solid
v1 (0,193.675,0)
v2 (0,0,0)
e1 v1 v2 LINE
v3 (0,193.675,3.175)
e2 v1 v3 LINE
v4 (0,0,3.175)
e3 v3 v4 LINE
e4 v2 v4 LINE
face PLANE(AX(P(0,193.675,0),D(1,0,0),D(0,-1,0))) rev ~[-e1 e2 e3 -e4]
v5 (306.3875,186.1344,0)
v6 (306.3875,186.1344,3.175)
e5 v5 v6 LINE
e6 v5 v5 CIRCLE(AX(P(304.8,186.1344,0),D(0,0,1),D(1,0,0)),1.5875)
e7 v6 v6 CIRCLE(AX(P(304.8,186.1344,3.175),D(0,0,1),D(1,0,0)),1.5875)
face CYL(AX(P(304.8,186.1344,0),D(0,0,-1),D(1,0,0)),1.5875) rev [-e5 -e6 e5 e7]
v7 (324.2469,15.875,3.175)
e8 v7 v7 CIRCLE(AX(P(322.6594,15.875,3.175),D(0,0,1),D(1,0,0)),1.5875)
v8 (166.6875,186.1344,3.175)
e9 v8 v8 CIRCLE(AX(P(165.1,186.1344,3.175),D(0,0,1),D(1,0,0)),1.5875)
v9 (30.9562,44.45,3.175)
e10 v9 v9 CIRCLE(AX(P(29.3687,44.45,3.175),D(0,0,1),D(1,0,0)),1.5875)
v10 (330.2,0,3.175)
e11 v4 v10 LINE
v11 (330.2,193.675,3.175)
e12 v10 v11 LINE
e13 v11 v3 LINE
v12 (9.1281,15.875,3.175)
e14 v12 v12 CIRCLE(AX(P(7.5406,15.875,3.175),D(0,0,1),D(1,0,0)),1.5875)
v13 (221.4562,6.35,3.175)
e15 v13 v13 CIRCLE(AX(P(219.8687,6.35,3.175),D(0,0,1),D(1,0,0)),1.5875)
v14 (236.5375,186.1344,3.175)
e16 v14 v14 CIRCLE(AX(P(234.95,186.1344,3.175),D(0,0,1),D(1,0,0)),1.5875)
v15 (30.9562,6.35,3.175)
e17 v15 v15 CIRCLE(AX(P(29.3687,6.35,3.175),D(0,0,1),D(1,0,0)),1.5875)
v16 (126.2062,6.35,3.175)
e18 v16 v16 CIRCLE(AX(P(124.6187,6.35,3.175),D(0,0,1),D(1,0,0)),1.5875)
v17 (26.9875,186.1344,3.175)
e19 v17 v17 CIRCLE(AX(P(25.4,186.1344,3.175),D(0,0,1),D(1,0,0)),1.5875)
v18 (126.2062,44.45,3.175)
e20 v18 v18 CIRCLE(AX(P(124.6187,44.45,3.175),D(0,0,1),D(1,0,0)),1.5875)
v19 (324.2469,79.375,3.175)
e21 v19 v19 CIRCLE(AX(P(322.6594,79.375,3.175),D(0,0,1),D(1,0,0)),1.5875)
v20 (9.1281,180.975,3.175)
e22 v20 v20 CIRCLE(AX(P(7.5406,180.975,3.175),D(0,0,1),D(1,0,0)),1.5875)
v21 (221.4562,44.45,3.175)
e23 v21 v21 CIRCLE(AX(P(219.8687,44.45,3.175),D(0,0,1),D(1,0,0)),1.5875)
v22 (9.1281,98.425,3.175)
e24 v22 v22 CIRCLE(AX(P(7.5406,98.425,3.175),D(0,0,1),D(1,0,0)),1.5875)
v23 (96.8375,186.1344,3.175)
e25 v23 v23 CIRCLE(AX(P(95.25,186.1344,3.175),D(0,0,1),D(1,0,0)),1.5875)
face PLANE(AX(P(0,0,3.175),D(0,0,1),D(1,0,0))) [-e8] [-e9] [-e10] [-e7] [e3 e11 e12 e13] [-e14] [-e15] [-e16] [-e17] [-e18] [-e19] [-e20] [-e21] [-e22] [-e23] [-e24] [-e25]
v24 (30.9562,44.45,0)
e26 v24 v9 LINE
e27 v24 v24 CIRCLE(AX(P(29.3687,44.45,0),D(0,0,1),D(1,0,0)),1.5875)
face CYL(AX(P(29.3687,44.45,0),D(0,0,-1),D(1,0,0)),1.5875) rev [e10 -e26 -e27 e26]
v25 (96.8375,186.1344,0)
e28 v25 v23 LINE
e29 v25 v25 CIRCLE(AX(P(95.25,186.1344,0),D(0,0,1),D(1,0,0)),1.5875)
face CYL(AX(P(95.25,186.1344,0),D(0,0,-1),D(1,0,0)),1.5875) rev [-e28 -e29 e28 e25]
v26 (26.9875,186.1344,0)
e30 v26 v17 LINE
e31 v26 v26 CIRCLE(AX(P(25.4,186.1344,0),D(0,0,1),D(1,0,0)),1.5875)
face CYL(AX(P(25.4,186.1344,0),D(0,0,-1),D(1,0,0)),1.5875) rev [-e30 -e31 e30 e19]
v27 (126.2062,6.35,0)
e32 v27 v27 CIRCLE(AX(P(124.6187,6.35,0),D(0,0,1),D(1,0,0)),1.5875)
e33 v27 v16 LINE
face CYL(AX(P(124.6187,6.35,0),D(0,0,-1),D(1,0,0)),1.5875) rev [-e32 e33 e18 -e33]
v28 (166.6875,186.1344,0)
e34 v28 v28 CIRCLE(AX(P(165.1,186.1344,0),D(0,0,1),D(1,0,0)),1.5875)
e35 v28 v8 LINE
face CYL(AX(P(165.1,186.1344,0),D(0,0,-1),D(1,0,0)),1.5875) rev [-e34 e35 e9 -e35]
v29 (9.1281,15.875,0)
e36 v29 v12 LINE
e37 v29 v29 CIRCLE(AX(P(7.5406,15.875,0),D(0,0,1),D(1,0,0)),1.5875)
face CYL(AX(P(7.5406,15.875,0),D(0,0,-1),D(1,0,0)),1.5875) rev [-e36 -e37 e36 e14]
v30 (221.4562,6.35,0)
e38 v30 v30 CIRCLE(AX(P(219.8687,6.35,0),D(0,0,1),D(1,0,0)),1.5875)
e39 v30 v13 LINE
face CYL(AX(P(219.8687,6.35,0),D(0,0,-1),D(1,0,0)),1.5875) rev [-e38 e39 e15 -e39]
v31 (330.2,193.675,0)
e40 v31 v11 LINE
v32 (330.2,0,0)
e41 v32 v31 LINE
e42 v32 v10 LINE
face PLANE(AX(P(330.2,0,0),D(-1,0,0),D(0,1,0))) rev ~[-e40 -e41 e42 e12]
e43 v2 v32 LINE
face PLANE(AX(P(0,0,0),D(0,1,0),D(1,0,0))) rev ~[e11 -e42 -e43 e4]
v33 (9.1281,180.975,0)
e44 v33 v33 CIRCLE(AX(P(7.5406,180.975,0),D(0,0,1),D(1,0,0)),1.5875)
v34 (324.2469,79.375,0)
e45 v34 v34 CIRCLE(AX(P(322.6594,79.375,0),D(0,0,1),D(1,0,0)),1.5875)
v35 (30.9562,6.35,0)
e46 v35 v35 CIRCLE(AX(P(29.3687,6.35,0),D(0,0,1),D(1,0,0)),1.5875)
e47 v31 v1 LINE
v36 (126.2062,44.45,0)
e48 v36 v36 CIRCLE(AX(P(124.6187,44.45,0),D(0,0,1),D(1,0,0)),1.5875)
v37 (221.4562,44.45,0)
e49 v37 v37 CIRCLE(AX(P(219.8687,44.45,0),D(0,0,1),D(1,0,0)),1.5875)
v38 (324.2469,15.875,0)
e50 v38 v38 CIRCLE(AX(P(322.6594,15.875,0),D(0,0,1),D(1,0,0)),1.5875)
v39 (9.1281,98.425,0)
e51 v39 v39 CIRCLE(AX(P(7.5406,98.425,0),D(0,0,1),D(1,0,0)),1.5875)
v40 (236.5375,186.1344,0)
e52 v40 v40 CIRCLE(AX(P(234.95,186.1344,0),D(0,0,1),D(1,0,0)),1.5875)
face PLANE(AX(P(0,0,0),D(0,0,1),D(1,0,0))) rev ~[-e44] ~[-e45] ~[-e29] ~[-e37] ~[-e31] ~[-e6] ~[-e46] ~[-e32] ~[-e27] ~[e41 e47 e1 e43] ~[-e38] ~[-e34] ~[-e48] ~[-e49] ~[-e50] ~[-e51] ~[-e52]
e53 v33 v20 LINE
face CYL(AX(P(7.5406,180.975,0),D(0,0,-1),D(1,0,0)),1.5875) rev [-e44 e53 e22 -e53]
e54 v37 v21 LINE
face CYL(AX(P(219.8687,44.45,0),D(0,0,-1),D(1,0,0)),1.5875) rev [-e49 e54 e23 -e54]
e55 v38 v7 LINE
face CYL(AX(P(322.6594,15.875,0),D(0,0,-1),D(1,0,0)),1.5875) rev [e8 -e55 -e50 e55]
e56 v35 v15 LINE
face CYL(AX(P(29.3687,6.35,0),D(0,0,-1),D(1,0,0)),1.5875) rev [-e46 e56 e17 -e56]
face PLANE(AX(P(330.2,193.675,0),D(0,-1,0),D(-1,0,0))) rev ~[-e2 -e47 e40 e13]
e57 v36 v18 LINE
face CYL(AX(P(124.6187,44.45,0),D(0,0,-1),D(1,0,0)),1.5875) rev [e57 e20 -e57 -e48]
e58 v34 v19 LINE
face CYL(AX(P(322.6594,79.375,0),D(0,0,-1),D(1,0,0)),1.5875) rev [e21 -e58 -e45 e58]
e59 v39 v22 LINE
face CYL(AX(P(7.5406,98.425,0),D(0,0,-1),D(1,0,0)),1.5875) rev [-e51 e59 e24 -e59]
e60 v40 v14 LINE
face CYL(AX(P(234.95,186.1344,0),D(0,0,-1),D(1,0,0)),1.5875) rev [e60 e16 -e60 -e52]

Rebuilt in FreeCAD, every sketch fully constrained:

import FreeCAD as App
import Part
import Sketcher
from FreeCAD import Vector
Q = App.Units.Quantity

doc = App.newDocument("Part")
params = doc.addObject("Spreadsheet::Sheet", "Params")
for row, (alias, value) in enumerate([
    ("sketch1_width", "13 in"),
    ("sketch1_height", "7.625 in"),
    ("sketch1_diameter", "0.125 in"),
    ("pad1_length", "0.125 in"),
], start=1):
    params.set(f"A{row}", alias)
    params.set(f"B{row}", "=" + value)
    params.setAlias(f"B{row}", alias)

body = doc.addObject("PartDesign::Body", "Body")

sketch1 = doc.addObject("Sketcher::SketchObject", "Sketch")
body.addObject(sketch1)
sketch1.AttachmentSupport = (doc.XY_Plane, [""])
sketch1.MapMode = "FlatFace"
sketch1.addGeometry([
    Part.LineSegment(Vector(0, 193.675, 0), Vector(0, 0, 0)),
    Part.LineSegment(Vector(0, 0, 0), Vector(330.2, 0, 0)),
    Part.LineSegment(Vector(330.2, 0, 0), Vector(330.2, 193.675, 0)),
    Part.LineSegment(Vector(330.2, 193.675, 0), Vector(0, 193.675, 0)),
    Part.Circle(Vector(29.3687, 6.35, 0), Vector(0, 0, 1), 1.5875),
    Part.Circle(Vector(7.5406, 15.875, 0), Vector(0, 0, 1), 1.5875),
    Part.Circle(Vector(29.3687, 44.45, 0), Vector(0, 0, 1), 1.5875),
    Part.Circle(Vector(124.6187, 6.35, 0), Vector(0, 0, 1), 1.5875),
    Part.Circle(Vector(124.6187, 44.45, 0), Vector(0, 0, 1), 1.5875),
    Part.Circle(Vector(219.8687, 6.35, 0), Vector(0, 0, 1), 1.5875),
    Part.Circle(Vector(219.8687, 44.45, 0), Vector(0, 0, 1), 1.5875),
    Part.Circle(Vector(322.6594, 15.875, 0), Vector(0, 0, 1), 1.5875),
    Part.Circle(Vector(322.6594, 79.375, 0), Vector(0, 0, 1), 1.5875),
    Part.Circle(Vector(7.5406, 98.425, 0), Vector(0, 0, 1), 1.5875),
    Part.Circle(Vector(7.5406, 180.975, 0), Vector(0, 0, 1), 1.5875),
    Part.Circle(Vector(25.4, 186.1344, 0), Vector(0, 0, 1), 1.5875),
    Part.Circle(Vector(95.25, 186.1344, 0), Vector(0, 0, 1), 1.5875),
    Part.Circle(Vector(165.1, 186.1344, 0), Vector(0, 0, 1), 1.5875),
    Part.Circle(Vector(234.95, 186.1344, 0), Vector(0, 0, 1), 1.5875),
    Part.Circle(Vector(304.8, 186.1344, 0), Vector(0, 0, 1), 1.5875),
], False)
sketch1.addConstraint([
    Sketcher.Constraint("Coincident", 0, 2, 1, 1),
    Sketcher.Constraint("Coincident", 1, 2, 2, 1),
    Sketcher.Constraint("Coincident", 2, 2, 3, 1),
    Sketcher.Constraint("Coincident", 3, 2, 0, 1),
    Sketcher.Constraint("Vertical", 0),
    Sketcher.Constraint("Horizontal", 1),
    Sketcher.Constraint("Vertical", 2),
    Sketcher.Constraint("Horizontal", 3),
    Sketcher.Constraint("Coincident", 0, 2, -1, 1),
    Sketcher.Constraint("Equal", 4, 5),
    Sketcher.Constraint("Equal", 5, 6),
    Sketcher.Constraint("Equal", 6, 7),
    Sketcher.Constraint("Equal", 7, 8),
    Sketcher.Constraint("Equal", 8, 9),
    Sketcher.Constraint("Equal", 9, 10),
    Sketcher.Constraint("Equal", 10, 11),
    Sketcher.Constraint("Equal", 11, 12),
    Sketcher.Constraint("Equal", 12, 13),
    Sketcher.Constraint("Equal", 13, 14),
    Sketcher.Constraint("Equal", 14, 15),
    Sketcher.Constraint("Equal", 15, 16),
    Sketcher.Constraint("Equal", 16, 17),
    Sketcher.Constraint("Equal", 17, 18),
    Sketcher.Constraint("Equal", 18, 19),
    Sketcher.Constraint("Horizontal", 4, 3, 7, 3),
    Sketcher.Constraint("Horizontal", 6, 3, 8, 3),
    Sketcher.Constraint("Horizontal", 7, 3, 9, 3),
    Sketcher.Constraint("Horizontal", 8, 3, 10, 3),
    Sketcher.Constraint("Horizontal", 5, 3, 11, 3),
    Sketcher.Constraint("Horizontal", 15, 3, 16, 3),
    Sketcher.Constraint("Horizontal", 16, 3, 17, 3),
    Sketcher.Constraint("Horizontal", 17, 3, 18, 3),
    Sketcher.Constraint("Horizontal", 18, 3, 19, 3),
    Sketcher.Constraint("Vertical", 4, 3, 6, 3),
    Sketcher.Constraint("Vertical", 7, 3, 8, 3),
    Sketcher.Constraint("Vertical", 9, 3, 10, 3),
    Sketcher.Constraint("Vertical", 11, 3, 12, 3),
    Sketcher.Constraint("Vertical", 5, 3, 13, 3),
    Sketcher.Constraint("Vertical", 13, 3, 14, 3),
    Sketcher.Constraint("DistanceX", 1, 1, 1, 2, Q("13 in")),
    Sketcher.Constraint("DistanceY", 0, 2, 0, 1, Q("7.625 in")),
    Sketcher.Constraint("Diameter", 4, Q("0.125 in")),
    Sketcher.Constraint("DistanceX", -1, 1, 15, 3, Q("1 in")),
    Sketcher.Constraint("DistanceX", -1, 1, 19, 3, Q("12 in")),
    Sketcher.Constraint("DistanceY", 11, 3, 2, 2, Q("7 in")),
    Sketcher.Constraint("DistanceX", -1, 1, 17, 3, Q("6.5 in")),
    Sketcher.Constraint("DistanceY", 4, 3, 6, 3, Q("1.5 in")),
    Sketcher.Constraint("DistanceX", 4, 3, 9, 3, Q("7.5 in")),
    Sketcher.Constraint("DistanceY", 11, 3, 12, 3, Q("2.5 in")),
    Sketcher.Constraint("DistanceY", 5, 3, 14, 3, Q("6.5 in")),
    Sketcher.Constraint("DistanceX", 16, 3, 18, 3, Q("5.5 in")),
    Sketcher.Constraint("DistanceY", -1, 1, 4, 3, Q("0.25 in")),
    Sketcher.Constraint("DistanceX", -1, 1, 16, 3, Q("3.75 in")),
    Sketcher.Constraint("DistanceX", 4, 3, 7, 3, Q("3.75 in")),
    Sketcher.Constraint("DistanceY", 5, 3, 13, 3, Q("3.25 in")),
    Sketcher.Constraint("DistanceX", -1, 1, 4, 3, Q("1.156248 in")),
    Sketcher.Constraint("DistanceX", -1, 1, 5, 3, Q("0.296874 in")),
    Sketcher.Constraint("DistanceX", -1, 1, 11, 3, Q("12.703126 in")),
    Sketcher.Constraint("DistanceY", -1, 1, 15, 3, Q("7.328126 in")),
])
sketch1.setExpression("Constraints[39]", "Params.sketch1_width")
sketch1.setExpression("Constraints[40]", "Params.sketch1_height")
sketch1.setExpression("Constraints[41]", "Params.sketch1_diameter")
pad1 = doc.addObject("PartDesign::Pad", "Pad")
body.addObject(pad1)
pad1.Profile = sketch1
pad1.setExpression("Length", "Params.pad1_length")

doc.recompute()
